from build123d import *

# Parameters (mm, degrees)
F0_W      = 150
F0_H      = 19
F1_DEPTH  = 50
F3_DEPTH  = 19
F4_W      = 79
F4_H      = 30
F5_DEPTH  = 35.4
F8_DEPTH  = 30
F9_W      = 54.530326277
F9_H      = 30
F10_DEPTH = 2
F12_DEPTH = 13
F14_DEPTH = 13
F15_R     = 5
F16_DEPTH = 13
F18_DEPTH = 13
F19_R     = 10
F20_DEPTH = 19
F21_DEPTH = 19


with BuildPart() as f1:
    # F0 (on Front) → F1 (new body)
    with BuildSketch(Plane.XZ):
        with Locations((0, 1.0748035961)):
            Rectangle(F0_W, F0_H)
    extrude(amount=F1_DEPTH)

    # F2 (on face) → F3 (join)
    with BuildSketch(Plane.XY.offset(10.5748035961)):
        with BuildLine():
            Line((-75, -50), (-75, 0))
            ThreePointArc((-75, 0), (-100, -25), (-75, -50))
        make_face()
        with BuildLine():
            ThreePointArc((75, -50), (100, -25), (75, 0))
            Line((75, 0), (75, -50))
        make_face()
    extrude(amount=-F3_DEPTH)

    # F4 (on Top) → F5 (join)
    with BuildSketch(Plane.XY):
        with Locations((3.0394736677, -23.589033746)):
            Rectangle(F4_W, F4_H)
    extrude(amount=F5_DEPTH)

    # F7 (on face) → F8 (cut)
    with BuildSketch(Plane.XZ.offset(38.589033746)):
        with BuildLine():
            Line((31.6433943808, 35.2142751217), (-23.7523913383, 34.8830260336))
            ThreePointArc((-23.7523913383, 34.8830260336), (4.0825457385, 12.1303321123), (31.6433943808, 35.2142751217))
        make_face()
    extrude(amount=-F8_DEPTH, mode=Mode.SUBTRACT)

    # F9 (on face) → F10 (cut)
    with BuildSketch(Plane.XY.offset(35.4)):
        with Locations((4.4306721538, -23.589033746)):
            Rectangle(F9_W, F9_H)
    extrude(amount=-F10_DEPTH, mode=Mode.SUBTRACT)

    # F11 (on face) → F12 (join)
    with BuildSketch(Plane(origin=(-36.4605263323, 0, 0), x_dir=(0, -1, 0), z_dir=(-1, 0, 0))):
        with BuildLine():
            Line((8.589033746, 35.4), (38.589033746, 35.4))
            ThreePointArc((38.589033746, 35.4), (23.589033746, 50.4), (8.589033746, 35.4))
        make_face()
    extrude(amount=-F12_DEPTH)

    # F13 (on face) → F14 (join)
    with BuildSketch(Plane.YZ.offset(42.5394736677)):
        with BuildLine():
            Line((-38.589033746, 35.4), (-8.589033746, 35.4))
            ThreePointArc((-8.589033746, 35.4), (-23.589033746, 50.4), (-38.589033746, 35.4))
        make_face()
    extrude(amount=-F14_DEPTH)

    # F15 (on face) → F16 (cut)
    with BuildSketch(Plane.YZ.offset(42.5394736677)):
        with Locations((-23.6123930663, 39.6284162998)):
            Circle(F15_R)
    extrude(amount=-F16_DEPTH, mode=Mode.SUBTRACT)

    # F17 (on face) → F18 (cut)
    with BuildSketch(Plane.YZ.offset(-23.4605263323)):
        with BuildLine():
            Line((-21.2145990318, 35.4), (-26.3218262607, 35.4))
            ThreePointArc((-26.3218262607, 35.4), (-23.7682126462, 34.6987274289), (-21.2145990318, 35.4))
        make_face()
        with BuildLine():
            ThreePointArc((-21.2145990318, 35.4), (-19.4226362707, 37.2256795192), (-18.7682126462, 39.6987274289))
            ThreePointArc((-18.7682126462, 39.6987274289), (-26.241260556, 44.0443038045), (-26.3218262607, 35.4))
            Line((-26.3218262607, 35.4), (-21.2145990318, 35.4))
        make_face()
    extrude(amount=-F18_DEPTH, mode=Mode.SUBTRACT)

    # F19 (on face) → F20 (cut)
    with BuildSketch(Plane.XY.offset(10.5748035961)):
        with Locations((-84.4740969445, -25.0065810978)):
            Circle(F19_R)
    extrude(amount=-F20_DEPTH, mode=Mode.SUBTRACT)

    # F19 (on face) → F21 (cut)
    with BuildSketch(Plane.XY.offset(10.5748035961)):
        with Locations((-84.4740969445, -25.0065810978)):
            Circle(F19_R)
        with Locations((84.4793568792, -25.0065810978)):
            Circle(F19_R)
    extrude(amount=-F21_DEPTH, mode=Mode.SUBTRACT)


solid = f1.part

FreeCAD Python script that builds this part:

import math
import FreeCAD as App
import Part
import Sketcher


def add_polygon(sketch, points):
    """Adds a closed chain of lines whose ends are joined by coincident constraints."""
    first, n = sketch.GeometryCount, len(points)
    for a, b in zip(points, points[1:] + points[:1]):
        sketch.addGeometry(Part.LineSegment(App.Vector(*a, 0), App.Vector(*b, 0)), False)
    for i in range(n):
        sketch.addConstraint(Sketcher.Constraint("Coincident", first + i, 2, first + (i + 1) % n, 1))

doc = App.newDocument("Part")
body = doc.addObject("PartDesign::Body", "Body")

# Sketch on XZ plane
sketch1 = body.newObject("Sketcher::SketchObject", "Sketch")
sketch1.AttachmentSupport = (doc.getObject("XZ_Plane"), [""])
sketch1.MapMode = "FlatFace"
add_polygon(sketch1, [(-75, 11), (-75, -8), (75, -8), (75, 11)])  # lines 0-3
sketch1.addConstraint([
    Sketcher.Constraint("Vertical", 0),
    Sketcher.Constraint("Horizontal", 1),
    Sketcher.Constraint("Vertical", 2),
    Sketcher.Constraint("Horizontal", 3),
    Sketcher.Constraint("DistanceX", 1, 1, 1, 2, 150.0),
    Sketcher.Constraint("DistanceY", 0, 2, 0, 1, 19.0),
    Sketcher.Constraint("DistanceX", 0, 2, -1, 1, 75.0),
    Sketcher.Constraint("DistanceY", 0, 2, -1, 1, 8.425196),
])
pad1 = body.newObject("PartDesign::Pad", "Pad")
pad1.Profile = sketch1
pad1.Length = 50

# Sketch on XY plane
sketch2 = body.newObject("Sketcher::SketchObject", "Sketch001")
sketch2.AttachmentSupport = (doc.getObject("XY_Plane"), [""])
sketch2.MapMode = "FlatFace"
sketch2.AttachmentOffset = App.Placement(App.Vector(0, 0, 10.574804), App.Rotation())
sketch2.addGeometry([
    Part.LineSegment(App.Vector(-75, -50, 0), App.Vector(-75, 0, 0)),
    Part.ArcOfCircle(Part.Circle(App.Vector(-75, -25, 0), App.Vector(0, 0, 1), 25), math.radians(90), math.radians(270)),
    Part.ArcOfCircle(Part.Circle(App.Vector(75, -25, 0), App.Vector(0, 0, 1), 25), math.radians(-90), math.radians(90)),
    Part.LineSegment(App.Vector(75, 0, 0), App.Vector(75, -50, 0)),
], False)
sketch2.addConstraint([
    Sketcher.Constraint("Coincident", 0, 1, 1, 2),
    Sketcher.Constraint("Coincident", 1, 1, 0, 2),
    Sketcher.Constraint("Coincident", 2, 1, 3, 2),
    Sketcher.Constraint("Coincident", 3, 1, 2, 2),
    Sketcher.Constraint("Vertical", 0),
    Sketcher.Constraint("Vertical", 3),
    Sketcher.Constraint("Equal", 1, 2),
    Sketcher.Constraint("Symmetric", 1, 1, 3, 1, -1, 1),
    Sketcher.Constraint("Symmetric", 1, 3, 2, 3, -2),
    Sketcher.Constraint("Vertical", 1, 3, 0, 1),
    Sketcher.Constraint("Radius", 1, 25.0),
    Sketcher.Constraint("DistanceX", 1, 3, -1, 1, 75.0),
])
pad2 = body.newObject("PartDesign::Pad", "Pad001")
pad2.Profile = sketch2
pad2.Length = 19
pad2.Reversed = True

# Sketch on XY plane
sketch3 = body.newObject("Sketcher::SketchObject", "Sketch002")
sketch3.AttachmentSupport = (doc.getObject("XY_Plane"), [""])
sketch3.MapMode = "FlatFace"
add_polygon(sketch3, [(-36, -9), (-36, -39), (43, -39), (43, -9)])  # lines 0-3
sketch3.addConstraint([
    Sketcher.Constraint("Vertical", 0),
    Sketcher.Constraint("Horizontal", 1),
    Sketcher.Constraint("Vertical", 2),
    Sketcher.Constraint("Horizontal", 3),
    Sketcher.Constraint("DistanceX", 1, 1, 1, 2, 79.0),
    Sketcher.Constraint("DistanceY", 0, 2, 0, 1, 30.0),
    Sketcher.Constraint("DistanceX", 0, 2, -1, 1, 36.460526),
    Sketcher.Constraint("DistanceY", 0, 2, -1, 1, 38.589034),
])
pad3 = body.newObject("PartDesign::Pad", "Pad002")
pad3.Profile = sketch3
pad3.Length = 35.4

# Sketch on XZ plane
sketch4 = body.newObject("Sketcher::SketchObject", "Sketch003")
sketch4.AttachmentSupport = (doc.getObject("XZ_Plane"), [""])
sketch4.MapMode = "FlatFace"
sketch4.AttachmentOffset = App.Placement(App.Vector(0, 0, 38.589034), App.Rotation())
sketch4.addGeometry([
    Part.LineSegment(App.Vector(32, 35, 0), App.Vector(-24, 35, 0)),
    Part.ArcOfCircle(Part.Circle(App.Vector(4, 40, 0), App.Vector(0, 0, 1), 28), math.radians(-169), math.radians(-10)),
], False)
sketch4.addConstraint([
    Sketcher.Constraint("Coincident", 0, 1, 1, 2),
    Sketcher.Constraint("Coincident", 1, 1, 0, 2),
    Sketcher.Constraint("Radius", 1, 28.196783),
    Sketcher.Constraint("DistanceX", -1, 1, 1, 3, 3.913941),
    Sketcher.Constraint("DistanceY", -1, 1, 1, 3, 40.326611),
    Sketcher.Constraint("DistanceX", 1, 1, -1, 1, 23.752391),
    Sketcher.Constraint("DistanceY", 1, 1, 0, 1, 0.331249),
])
pocket1 = body.newObject("PartDesign::Pocket", "Pocket")
pocket1.Profile = sketch4
pocket1.Length = 30

# Sketch on XY plane
sketch5 = body.newObject("Sketcher::SketchObject", "Sketch004")
sketch5.AttachmentSupport = (doc.getObject("XY_Plane"), [""])
sketch5.MapMode = "FlatFace"
sketch5.AttachmentOffset = App.Placement(App.Vector(0, 0, 35.4), App.Rotation())
add_polygon(sketch5, [(-23, -9), (-23, -39), (32, -39), (32, -9)])  # lines 0-3
sketch5.addConstraint([
    Sketcher.Constraint("Vertical", 0),
    Sketcher.Constraint("Horizontal", 1),
    Sketcher.Constraint("Vertical", 2),
    Sketcher.Constraint("Horizontal", 3),
    Sketcher.Constraint("DistanceY", 0, 2, 0, 1, 30.0),
    Sketcher.Constraint("DistanceX", 1, 1, 1, 2, 54.530326),
    Sketcher.Constraint("DistanceX", 0, 2, -1, 1, 22.834491),
    Sketcher.Constraint("DistanceY", 0, 2, -1, 1, 38.589034),
])
pocket2 = body.newObject("PartDesign::Pocket", "Pocket001")
pocket2.Profile = sketch5
pocket2.Length = 2

# Sketch on YZ plane
sketch6 = body.newObject("Sketcher::SketchObject", "Sketch005")
sketch6.AttachmentSupport = (doc.getObject("YZ_Plane"), [""])
sketch6.MapMode = "FlatFace"
sketch6.AttachmentOffset = App.Placement(App.Vector(0, 0, -36.460526), App.Rotation())
sketch6.addGeometry([
    Part.LineSegment(App.Vector(-9, 35, 0), App.Vector(-39, 35, 0)),
    Part.ArcOfCircle(Part.Circle(App.Vector(-24, 35, 0), App.Vector(0, 0, 1), 15), math.radians(0), math.radians(180)),
], False)
sketch6.addConstraint([
    Sketcher.Constraint("Coincident", 0, 1, 1, 1),
    Sketcher.Constraint("Coincident", 1, 2, 0, 2),
    Sketcher.Constraint("Horizontal", 0),
    Sketcher.Constraint("Horizontal", 1, 3, 0, 1),
    Sketcher.Constraint("Radius", 1, 15.0),
    Sketcher.Constraint("DistanceY", -1, 1, 1, 3, 35.4),
    Sketcher.Constraint("DistanceX", 1, 3, -1, 1, 23.589034),
])
pad4 = body.newObject("PartDesign::Pad", "Pad003")
pad4.Profile = sketch6
pad4.Length = 13

# Sketch on YZ plane
sketch7 = body.newObject("Sketcher::SketchObject", "Sketch006")
sketch7.AttachmentSupport = (doc.getObject("YZ_Plane"), [""])
sketch7.MapMode = "FlatFace"
sketch7.AttachmentOffset = App.Placement(App.Vector(0, 0, 42.539474), App.Rotation())
sketch7.addGeometry([
    Part.LineSegment(App.Vector(-39, 35, 0), App.Vector(-9, 35, 0)),
    Part.ArcOfCircle(Part.Circle(App.Vector(-24, 35, 0), App.Vector(0, 0, 1), 15), math.radians(0), math.radians(180)),
], False)
sketch7.addConstraint([
    Sketcher.Constraint("Coincident", 0, 1, 1, 2),
    Sketcher.Constraint("Coincident", 1, 1, 0, 2),
    Sketcher.Constraint("Horizontal", 0),
    Sketcher.Constraint("Horizontal", 1, 3, 0, 1),
    Sketcher.Constraint("Radius", 1, 15.0),
    Sketcher.Constraint("DistanceY", -1, 1, 1, 3, 35.4),
    Sketcher.Constraint("DistanceX", 1, 3, -1, 1, 23.589034),
])
pad5 = body.newObject("PartDesign::Pad", "Pad004")
pad5.Profile = sketch7
pad5.Length = 13
pad5.Reversed = True

# Sketch on YZ plane
sketch8 = body.newObject("Sketcher::SketchObject", "Sketch007")
sketch8.AttachmentSupport = (doc.getObject("YZ_Plane"), [""])
sketch8.MapMode = "FlatFace"
sketch8.AttachmentOffset = App.Placement(App.Vector(0, 0, 42.539474), App.Rotation())
sketch8.addGeometry(Part.Circle(App.Vector(-24, 40, 0), App.Vector(0, 0, 1), 5), False)
sketch8.addConstraint([
    Sketcher.Constraint("Diameter", 0, 10.0),
    Sketcher.Constraint("DistanceX", 0, 3, -1, 1, 23.612393),
    Sketcher.Constraint("DistanceY", -1, 1, 0, 3, 39.628416),
])
pocket3 = body.newObject("PartDesign::Pocket", "Pocket002")
pocket3.Profile = sketch8
pocket3.Length = 13

# Sketch on YZ plane
sketch9 = body.newObject("Sketcher::SketchObject", "Sketch008")
sketch9.AttachmentSupport = (doc.getObject("YZ_Plane"), [""])
sketch9.MapMode = "FlatFace"
sketch9.AttachmentOffset = App.Placement(App.Vector(0, 0, -23.460526), App.Rotation())
sketch9.addGeometry([
    Part.ArcOfCircle(Part.Circle(App.Vector(-23.8, 39.7, 0), App.Vector(0, 0, 1), 5), math.radians(-121), math.radians(-59)),
    Part.ArcOfCircle(Part.Circle(App.Vector(-23.8, 39.7, 0), App.Vector(0, 0, 1), 5), math.radians(-59), math.radians(0)),
    Part.ArcOfCircle(Part.Circle(App.Vector(-23.8, 39.7, 0), App.Vector(0, 0, 1), 5), math.radians(0), math.radians(239)),
], False)
sketch9.addConstraint([
    Sketcher.Constraint("Tangent", 0, 2, 1, 1),
    Sketcher.Constraint("Tangent", 1, 2, 2, 1),
    Sketcher.Constraint("Tangent", 2, 2, 0, 1),
    Sketcher.Constraint("Horizontal", 2, 3, 1, 2),
    Sketcher.Constraint("Horizontal", 0, 2, 2, 2),
    Sketcher.Constraint("Radius", 0, 5.0),
    Sketcher.Constraint("DistanceY", -1, 1, 0, 2, 35.4),
    Sketcher.Constraint("DistanceX", 0, 2, -1, 1, 21.214599),
    Sketcher.Constraint("DistanceX", 0, 3, -1, 1, 23.768213),
])
pocket4 = body.newObject("PartDesign::Pocket", "Pocket003")
pocket4.Profile = sketch9
pocket4.Length = 13

# Sketch on XY plane
sketch10 = body.newObject("Sketcher::SketchObject", "Sketch009")
sketch10.AttachmentSupport = (doc.getObject("XY_Plane"), [""])
sketch10.MapMode = "FlatFace"
sketch10.AttachmentOffset = App.Placement(App.Vector(0, 0, 10.574804), App.Rotation())
sketch10.addGeometry(Part.Circle(App.Vector(-84, -25, 0), App.Vector(0, 0, 1), 10), False)
sketch10.addConstraint([
    Sketcher.Constraint("Diameter", 0, 20.0),
    Sketcher.Constraint("DistanceY", 0, 3, -1, 1, 25.006581),
    Sketcher.Constraint("DistanceX", 0, 3, -1, 1, 84.474097),
])
pocket5 = body.newObject("PartDesign::Pocket", "Pocket004")
pocket5.Profile = sketch10
pocket5.Length = 19

# Sketch on XY plane
sketch11 = body.newObject("Sketcher::SketchObject", "Sketch010")
sketch11.AttachmentSupport = (doc.getObject("XY_Plane"), [""])
sketch11.MapMode = "FlatFace"
sketch11.AttachmentOffset = App.Placement(App.Vector(0, 0, 10.574804), App.Rotation())
sketch11.addGeometry([
    Part.Circle(App.Vector(-84, -25, 0), App.Vector(0, 0, 1), 10),
    Part.Circle(App.Vector(84, -25, 0), App.Vector(0, 0, 1), 10),
], False)
sketch11.addConstraint([
    Sketcher.Constraint("Equal", 0, 1),
    Sketcher.Constraint("Horizontal", 0, 3, 1, 3),
    Sketcher.Constraint("Diameter", 0, 20.0),
    Sketcher.Constraint("DistanceY", 0, 3, -1, 1, 25.006581),
    Sketcher.Constraint("DistanceX", 0, 3, -1, 1, 84.474097),
    Sketcher.Constraint("DistanceX", -1, 1, 1, 3, 84.479357),
])
pocket6 = body.newObject("PartDesign::Pocket", "Pocket005")
pocket6.Profile = sketch11
pocket6.Length = 19

doc.recompute()
